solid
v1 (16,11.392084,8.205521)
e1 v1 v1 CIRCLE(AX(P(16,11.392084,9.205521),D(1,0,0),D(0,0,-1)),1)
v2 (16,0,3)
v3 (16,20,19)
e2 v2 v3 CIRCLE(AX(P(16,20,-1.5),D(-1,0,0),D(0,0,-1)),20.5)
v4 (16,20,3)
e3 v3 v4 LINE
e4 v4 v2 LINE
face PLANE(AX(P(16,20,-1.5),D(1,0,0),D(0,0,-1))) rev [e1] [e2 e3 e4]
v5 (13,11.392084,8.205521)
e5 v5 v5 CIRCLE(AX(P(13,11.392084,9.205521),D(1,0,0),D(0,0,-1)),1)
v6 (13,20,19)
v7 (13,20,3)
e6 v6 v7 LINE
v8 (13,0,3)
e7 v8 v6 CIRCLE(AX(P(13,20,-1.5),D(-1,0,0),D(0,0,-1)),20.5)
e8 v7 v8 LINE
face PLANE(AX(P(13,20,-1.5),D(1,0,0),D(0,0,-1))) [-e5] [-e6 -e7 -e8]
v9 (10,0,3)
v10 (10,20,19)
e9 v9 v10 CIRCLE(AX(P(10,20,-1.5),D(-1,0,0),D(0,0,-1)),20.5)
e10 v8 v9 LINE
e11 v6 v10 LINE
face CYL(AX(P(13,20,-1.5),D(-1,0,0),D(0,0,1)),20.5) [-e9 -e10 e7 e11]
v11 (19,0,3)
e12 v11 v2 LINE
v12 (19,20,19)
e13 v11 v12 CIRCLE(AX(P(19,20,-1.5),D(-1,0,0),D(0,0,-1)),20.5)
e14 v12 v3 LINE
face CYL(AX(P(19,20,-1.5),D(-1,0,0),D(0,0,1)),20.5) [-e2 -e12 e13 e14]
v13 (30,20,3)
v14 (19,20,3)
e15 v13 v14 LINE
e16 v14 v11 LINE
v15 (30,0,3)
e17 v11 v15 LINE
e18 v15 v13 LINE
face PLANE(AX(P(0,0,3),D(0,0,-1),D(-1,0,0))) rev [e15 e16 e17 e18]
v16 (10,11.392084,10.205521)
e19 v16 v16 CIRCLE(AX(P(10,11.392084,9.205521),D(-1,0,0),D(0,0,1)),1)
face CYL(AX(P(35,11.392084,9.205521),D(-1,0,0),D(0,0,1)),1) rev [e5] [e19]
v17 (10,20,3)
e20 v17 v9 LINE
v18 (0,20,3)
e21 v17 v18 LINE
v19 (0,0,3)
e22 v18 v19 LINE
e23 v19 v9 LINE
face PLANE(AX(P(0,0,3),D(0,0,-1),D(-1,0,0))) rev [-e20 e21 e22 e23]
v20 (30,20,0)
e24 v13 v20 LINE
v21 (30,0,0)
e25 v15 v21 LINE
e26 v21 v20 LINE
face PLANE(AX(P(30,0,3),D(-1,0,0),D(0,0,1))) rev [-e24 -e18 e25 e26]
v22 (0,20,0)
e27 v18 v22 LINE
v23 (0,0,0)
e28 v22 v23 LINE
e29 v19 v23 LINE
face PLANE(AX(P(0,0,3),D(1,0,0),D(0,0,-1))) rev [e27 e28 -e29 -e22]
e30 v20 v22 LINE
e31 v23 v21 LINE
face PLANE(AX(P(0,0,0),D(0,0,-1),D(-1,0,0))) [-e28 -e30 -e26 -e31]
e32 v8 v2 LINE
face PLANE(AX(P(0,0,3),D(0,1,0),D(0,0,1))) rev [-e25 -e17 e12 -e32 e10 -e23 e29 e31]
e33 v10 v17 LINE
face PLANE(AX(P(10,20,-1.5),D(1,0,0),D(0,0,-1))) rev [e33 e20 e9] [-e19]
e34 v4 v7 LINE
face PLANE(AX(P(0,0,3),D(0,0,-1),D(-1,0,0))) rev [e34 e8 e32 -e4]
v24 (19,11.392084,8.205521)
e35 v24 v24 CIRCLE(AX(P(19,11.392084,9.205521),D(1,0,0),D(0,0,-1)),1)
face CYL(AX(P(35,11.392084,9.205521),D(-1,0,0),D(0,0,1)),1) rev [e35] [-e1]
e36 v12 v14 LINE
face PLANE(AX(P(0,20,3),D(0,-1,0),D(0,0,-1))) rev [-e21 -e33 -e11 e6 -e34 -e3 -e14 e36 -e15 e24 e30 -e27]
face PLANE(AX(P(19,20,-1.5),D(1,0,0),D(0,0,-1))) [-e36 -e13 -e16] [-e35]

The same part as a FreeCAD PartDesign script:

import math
import FreeCAD as App
import Part
import Sketcher

V = App.Vector
Q = App.Units.Quantity


def add_polygon(sketch, points):
    """Adds a closed chain of lines whose ends are joined by coincident constraints."""
    first, n = sketch.GeometryCount, len(points)
    for a, b in zip(points, points[1:] + points[:1]):
        sketch.addGeometry(Part.LineSegment(App.Vector(*a, 0), App.Vector(*b, 0)), False)
    for i in range(n):
        sketch.addConstraint(Sketcher.Constraint("Coincident", first + i, 2, first + (i + 1) % n, 1))

doc = App.newDocument("Part")
body = doc.addObject("PartDesign::Body", "Body")

# Sketch on XY plane
sketch1 = body.newObject("Sketcher::SketchObject", "Sketch")
sketch1.AttachmentSupport = (doc.getObject("XY_Plane"), [""])
sketch1.MapMode = "FlatFace"
add_polygon(sketch1, [(0, 20), (0, 0), (30, 0), (30, 20)])  # lines 0-3
sketch1.addConstraint([
    Sketcher.Constraint("Vertical", 0),
    Sketcher.Constraint("Horizontal", 1),
    Sketcher.Constraint("Vertical", 2),
    Sketcher.Constraint("Horizontal", 3),
    Sketcher.Constraint("Coincident", 0, 2, -1, 1),
    Sketcher.Constraint("DistanceX", 1, 1, 1, 2, Q("30 mm")),
    Sketcher.Constraint("DistanceY", 0, 2, 0, 1, Q("20 mm")),
])
pad1 = body.newObject("PartDesign::Pad", "Pad")
pad1.Profile = sketch1
pad1.Length = 3

# Sketch on YZ plane
sketch2 = body.newObject("Sketcher::SketchObject", "Sketch001")
sketch2.AttachmentSupport = (doc.getObject("YZ_Plane"), [""])
sketch2.MapMode = "FlatFace"
sketch2.AttachmentOffset = App.Placement(V(0, 0, 10), App.Rotation())
sketch2.addGeometry([
    Part.LineSegment(V(20, 3, 0), V(0, 3, 0)),
    Part.ArcOfCircle(Part.Circle(V(20, -1, 0), V(0, 0, 1), 20), math.radians(90), math.radians(167)),
    Part.LineSegment(V(20, 19, 0), V(20, 3, 0)),
], False)
sketch2.addConstraint([
    Sketcher.Constraint("Coincident", 0, 2, 1, 2),
    Sketcher.Constraint("Coincident", 1, 1, 2, 1),
    Sketcher.Constraint("Coincident", 2, 2, 0, 1),
    Sketcher.Constraint("Horizontal", 0),
    Sketcher.Constraint("Vertical", 2),
    Sketcher.Constraint("PointOnObject", 0, 2, -2),
    Sketcher.Constraint("Radius", 1, Q("20.5 mm")),
    Sketcher.Constraint("DistanceX", 0, 2, 0, 1, Q("20 mm")),
    Sketcher.Constraint("DistanceY", 2, 2, 2, 1, Q("16 mm")),
    Sketcher.Constraint("DistanceY", -1, 1, 0, 2, Q("3 mm")),
])
pad2 = body.newObject("PartDesign::Pad", "Pad001")
pad2.Profile = sketch2
pad2.Length = 3

# Sketch on YZ plane
sketch3 = body.newObject("Sketcher::SketchObject", "Sketch002")
sketch3.AttachmentSupport = (doc.getObject("YZ_Plane"), [""])
sketch3.MapMode = "FlatFace"
sketch3.AttachmentOffset = App.Placement(V(0, 0, 16), App.Rotation())
sketch3.addGeometry([
    Part.LineSegment(V(20, 3, 0), V(0, 3, 0)),
    Part.ArcOfCircle(Part.Circle(V(20, -1, 0), V(0, 0, 1), 20), math.radians(90), math.radians(167)),
    Part.LineSegment(V(20, 19, 0), V(20, 3, 0)),
], False)
sketch3.addConstraint([
    Sketcher.Constraint("Coincident", 0, 2, 1, 2),
    Sketcher.Constraint("Coincident", 1, 1, 2, 1),
    Sketcher.Constraint("Coincident", 2, 2, 0, 1),
    Sketcher.Constraint("Horizontal", 0),
    Sketcher.Constraint("Vertical", 2),
    Sketcher.Constraint("PointOnObject", 0, 2, -2),
    Sketcher.Constraint("Radius", 1, Q("20.5 mm")),
    Sketcher.Constraint("DistanceX", 0, 2, 0, 1, Q("20 mm")),
    Sketcher.Constraint("DistanceY", 2, 2, 2, 1, Q("16 mm")),
    Sketcher.Constraint("DistanceY", -1, 1, 0, 2, Q("3 mm")),
])
pad3 = body.newObject("PartDesign::Pad", "Pad002")
pad3.Profile = sketch3
pad3.Length = 3

# Sketch on YZ plane
sketch4 = body.newObject("Sketcher::SketchObject", "Sketch003")
sketch4.AttachmentSupport = (doc.getObject("YZ_Plane"), [""])
sketch4.MapMode = "FlatFace"
sketch4.AttachmentOffset = App.Placement(V(0, 0, 10), App.Rotation())
sketch4.addGeometry(Part.Circle(V(11.4, 9.2, 0), V(0, 0, 1), 1), False)
sketch4.addConstraint([
    Sketcher.Constraint("Diameter", 0, Q("2 mm")),
    Sketcher.Constraint("DistanceY", -1, 1, 0, 3, Q("9.205521 mm")),
    Sketcher.Constraint("DistanceX", -1, 1, 0, 3, Q("11.392084 mm")),
])
pocket1 = body.newObject("PartDesign::Pocket", "Pocket")
pocket1.Profile = sketch4
pocket1.Length = 25
pocket1.Reversed = True

doc.recompute()
